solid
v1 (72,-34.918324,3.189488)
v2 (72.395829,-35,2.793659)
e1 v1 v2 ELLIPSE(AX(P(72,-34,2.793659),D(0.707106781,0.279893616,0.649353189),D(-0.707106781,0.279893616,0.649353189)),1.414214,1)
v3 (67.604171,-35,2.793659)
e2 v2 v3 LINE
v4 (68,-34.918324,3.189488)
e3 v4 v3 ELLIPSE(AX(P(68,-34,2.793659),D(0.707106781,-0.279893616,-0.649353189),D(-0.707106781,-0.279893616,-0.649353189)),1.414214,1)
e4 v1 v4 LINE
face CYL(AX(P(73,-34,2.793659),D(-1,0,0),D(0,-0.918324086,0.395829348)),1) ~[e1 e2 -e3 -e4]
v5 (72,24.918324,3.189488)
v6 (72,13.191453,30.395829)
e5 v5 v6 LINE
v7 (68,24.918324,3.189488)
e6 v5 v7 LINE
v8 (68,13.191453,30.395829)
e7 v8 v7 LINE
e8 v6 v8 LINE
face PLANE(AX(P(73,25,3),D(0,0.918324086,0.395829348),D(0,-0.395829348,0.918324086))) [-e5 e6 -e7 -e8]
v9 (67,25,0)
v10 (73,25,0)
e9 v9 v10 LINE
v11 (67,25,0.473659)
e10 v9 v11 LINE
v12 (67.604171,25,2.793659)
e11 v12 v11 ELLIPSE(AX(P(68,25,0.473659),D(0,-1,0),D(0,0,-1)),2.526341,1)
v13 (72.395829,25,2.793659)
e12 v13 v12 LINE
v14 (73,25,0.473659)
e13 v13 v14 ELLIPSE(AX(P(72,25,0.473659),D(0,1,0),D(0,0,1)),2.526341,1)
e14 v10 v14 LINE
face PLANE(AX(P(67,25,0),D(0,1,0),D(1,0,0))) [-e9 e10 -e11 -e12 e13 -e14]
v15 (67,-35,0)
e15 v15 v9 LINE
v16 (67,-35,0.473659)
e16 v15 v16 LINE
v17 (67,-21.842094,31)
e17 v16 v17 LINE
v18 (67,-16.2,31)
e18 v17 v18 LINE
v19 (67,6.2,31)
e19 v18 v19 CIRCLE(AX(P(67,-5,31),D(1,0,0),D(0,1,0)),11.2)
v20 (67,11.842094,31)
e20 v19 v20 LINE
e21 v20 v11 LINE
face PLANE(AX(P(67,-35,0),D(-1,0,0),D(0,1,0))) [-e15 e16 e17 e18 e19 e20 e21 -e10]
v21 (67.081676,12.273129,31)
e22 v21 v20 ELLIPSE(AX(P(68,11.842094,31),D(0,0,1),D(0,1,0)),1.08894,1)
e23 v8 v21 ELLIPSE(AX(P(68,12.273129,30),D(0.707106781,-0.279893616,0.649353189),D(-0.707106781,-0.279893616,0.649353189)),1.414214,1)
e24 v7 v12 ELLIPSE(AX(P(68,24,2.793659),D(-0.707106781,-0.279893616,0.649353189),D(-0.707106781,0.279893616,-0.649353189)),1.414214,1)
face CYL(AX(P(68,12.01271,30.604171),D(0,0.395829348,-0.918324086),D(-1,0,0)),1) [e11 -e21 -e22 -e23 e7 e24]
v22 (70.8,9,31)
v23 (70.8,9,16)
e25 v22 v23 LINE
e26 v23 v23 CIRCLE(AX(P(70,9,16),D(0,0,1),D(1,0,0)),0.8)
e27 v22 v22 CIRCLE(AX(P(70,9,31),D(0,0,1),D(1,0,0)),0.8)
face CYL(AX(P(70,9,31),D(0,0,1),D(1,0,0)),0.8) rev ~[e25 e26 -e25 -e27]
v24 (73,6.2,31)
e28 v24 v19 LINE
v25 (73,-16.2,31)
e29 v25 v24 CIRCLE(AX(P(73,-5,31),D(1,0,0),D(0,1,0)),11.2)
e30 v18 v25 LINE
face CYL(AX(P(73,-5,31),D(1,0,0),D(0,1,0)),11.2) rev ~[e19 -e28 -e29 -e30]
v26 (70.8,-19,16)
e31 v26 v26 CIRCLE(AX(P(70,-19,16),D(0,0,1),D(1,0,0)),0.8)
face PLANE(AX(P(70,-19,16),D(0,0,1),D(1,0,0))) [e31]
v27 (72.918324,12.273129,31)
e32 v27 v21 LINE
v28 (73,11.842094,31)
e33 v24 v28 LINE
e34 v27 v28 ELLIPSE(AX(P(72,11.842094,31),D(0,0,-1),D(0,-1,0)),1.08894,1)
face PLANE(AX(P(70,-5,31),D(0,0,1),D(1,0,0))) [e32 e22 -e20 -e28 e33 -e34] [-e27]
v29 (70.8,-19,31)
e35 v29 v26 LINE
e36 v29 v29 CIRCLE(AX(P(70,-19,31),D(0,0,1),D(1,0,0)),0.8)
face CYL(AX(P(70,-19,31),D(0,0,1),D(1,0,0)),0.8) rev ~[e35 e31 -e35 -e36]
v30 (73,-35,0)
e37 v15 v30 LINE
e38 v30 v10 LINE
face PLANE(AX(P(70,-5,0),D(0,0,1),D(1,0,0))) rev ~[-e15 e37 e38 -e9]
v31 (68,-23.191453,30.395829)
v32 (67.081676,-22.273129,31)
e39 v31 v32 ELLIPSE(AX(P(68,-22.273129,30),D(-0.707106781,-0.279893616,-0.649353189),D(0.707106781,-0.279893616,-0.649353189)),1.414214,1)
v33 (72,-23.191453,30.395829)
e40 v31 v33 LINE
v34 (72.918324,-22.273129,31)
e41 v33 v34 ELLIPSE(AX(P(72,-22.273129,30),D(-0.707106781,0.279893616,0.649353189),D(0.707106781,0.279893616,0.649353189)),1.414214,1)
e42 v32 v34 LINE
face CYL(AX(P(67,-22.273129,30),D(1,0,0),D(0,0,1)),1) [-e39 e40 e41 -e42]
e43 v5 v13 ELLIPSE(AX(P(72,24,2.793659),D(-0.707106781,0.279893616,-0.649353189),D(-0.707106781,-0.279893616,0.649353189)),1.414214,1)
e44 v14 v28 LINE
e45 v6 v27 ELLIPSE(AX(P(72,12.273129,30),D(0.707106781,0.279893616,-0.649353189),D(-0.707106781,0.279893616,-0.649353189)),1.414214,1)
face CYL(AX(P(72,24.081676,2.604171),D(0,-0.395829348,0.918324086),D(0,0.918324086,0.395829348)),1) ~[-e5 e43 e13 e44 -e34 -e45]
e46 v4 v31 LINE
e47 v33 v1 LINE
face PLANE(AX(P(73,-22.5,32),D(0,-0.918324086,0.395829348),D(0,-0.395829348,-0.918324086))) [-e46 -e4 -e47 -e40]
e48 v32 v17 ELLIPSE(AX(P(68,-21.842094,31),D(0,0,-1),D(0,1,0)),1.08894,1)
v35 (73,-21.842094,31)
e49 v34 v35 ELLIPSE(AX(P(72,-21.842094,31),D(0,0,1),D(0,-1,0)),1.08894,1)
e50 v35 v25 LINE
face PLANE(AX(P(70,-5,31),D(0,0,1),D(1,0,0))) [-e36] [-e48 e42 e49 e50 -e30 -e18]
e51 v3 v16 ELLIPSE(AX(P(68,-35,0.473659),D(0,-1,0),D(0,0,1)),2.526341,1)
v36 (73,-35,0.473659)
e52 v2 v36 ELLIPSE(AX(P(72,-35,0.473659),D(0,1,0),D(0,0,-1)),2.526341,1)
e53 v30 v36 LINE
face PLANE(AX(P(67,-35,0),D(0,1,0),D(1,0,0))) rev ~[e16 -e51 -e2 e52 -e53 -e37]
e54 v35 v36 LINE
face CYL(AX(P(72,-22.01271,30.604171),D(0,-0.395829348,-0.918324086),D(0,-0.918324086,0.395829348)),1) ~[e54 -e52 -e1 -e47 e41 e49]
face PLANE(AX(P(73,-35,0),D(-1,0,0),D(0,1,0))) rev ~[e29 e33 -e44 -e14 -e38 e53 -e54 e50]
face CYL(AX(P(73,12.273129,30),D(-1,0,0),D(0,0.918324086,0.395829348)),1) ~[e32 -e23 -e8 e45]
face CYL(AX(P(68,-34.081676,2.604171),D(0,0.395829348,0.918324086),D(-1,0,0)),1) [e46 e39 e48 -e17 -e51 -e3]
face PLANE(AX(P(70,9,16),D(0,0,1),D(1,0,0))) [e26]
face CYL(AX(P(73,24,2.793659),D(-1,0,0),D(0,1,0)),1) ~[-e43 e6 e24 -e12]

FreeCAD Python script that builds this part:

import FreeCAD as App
import Part
import Sketcher

V = App.Vector


def edges_at(feature, points):
    """Names of the edges that pass closest to the given points."""
    edges = feature.Shape.Edges
    near = lambda p: min(range(len(edges)), key=lambda i: edges[i].distToShape(Part.Vertex(*p))[0])
    return sorted({f"Edge{near(p) + 1}" for p in points})


def add_polygon(sketch, points):
    """Adds a closed chain of lines whose ends are joined by coincident constraints."""
    first, n = sketch.GeometryCount, len(points)
    for a, b in zip(points, points[1:] + points[:1]):
        sketch.addGeometry(Part.LineSegment(App.Vector(*a, 0), App.Vector(*b, 0)), False)
    for i in range(n):
        sketch.addConstraint(Sketcher.Constraint("Coincident", first + i, 2, first + (i + 1) % n, 1))

doc = App.newDocument("Part")
body = doc.addObject("PartDesign::Body", "Body")

# Sketch on XY plane
sketch1 = doc.addObject("Sketcher::SketchObject", "Sketch")
body.addObject(sketch1)
sketch1.AttachmentSupport = (doc.XY_Plane, [""])
sketch1.MapMode = "FlatFace"
add_polygon(sketch1, [(67, 25), (67, -35), (73, -35), (73, 25)])  # lines 0-3
sketch1.addConstraint([
    Sketcher.Constraint("Vertical", 0),
    Sketcher.Constraint("Horizontal", 1),
    Sketcher.Constraint("Vertical", 2),
    Sketcher.Constraint("Horizontal", 3),
    Sketcher.Constraint("DistanceX", 1, 1, 1, 2, 6.0),
    Sketcher.Constraint("DistanceY", 0, 2, 0, 1, 60.0),
    Sketcher.Constraint("DistanceX", -1, 1, 0, 2, 67.0),
    Sketcher.Constraint("DistanceY", 0, 2, -1, 1, 35.0),
])
pad1 = doc.addObject("PartDesign::Pad", "Pad")
body.addObject(pad1)
pad1.Profile = sketch1
pad1.Length = 31

# Sketch on YZ plane
sketch2 = doc.addObject("Sketcher::SketchObject", "Sketch001")
body.addObject(sketch2)
sketch2.AttachmentSupport = (doc.YZ_Plane, [""])
sketch2.MapMode = "FlatFace"
sketch2.AttachmentOffset = App.Placement(V(0, 0, 73), App.Rotation())
sketch2.addGeometry(Part.Circle(V(-5, 31, 0), V(0, 0, 1), 11), False)
sketch2.addConstraint([
    Sketcher.Constraint("Diameter", 0, 22.4),
    Sketcher.Constraint("DistanceX", 0, 3, -1, 1, 5.0),
    Sketcher.Constraint("DistanceY", -1, 1, 0, 3, 31.0),
])
pocket1 = doc.addObject("PartDesign::Pocket", "Pocket")
body.addObject(pocket1)
pocket1.Profile = sketch2
pocket1.Type = "ThroughAll"

# Sketch on XY plane
sketch3 = doc.addObject("Sketcher::SketchObject", "Sketch002")
body.addObject(sketch3)
sketch3.AttachmentSupport = (doc.XY_Plane, [""])
sketch3.MapMode = "FlatFace"
sketch3.AttachmentOffset = App.Placement(V(0, 0, 31), App.Rotation())
sketch3.addGeometry([
    Part.Circle(V(70, 9, 0), V(0, 0, 1), 0.8),
    Part.Circle(V(70, -19, 0), V(0, 0, 1), 0.8),
], False)
sketch3.addConstraint([
    Sketcher.Constraint("Equal", 0, 1),
    Sketcher.Constraint("Vertical", 0, 3, 1, 3),
    Sketcher.Constraint("Diameter", 0, 1.6),
    Sketcher.Constraint("DistanceX", -1, 1, 0, 3, 70.0),
    Sketcher.Constraint("DistanceY", -1, 1, 0, 3, 9.0),
    Sketcher.Constraint("DistanceY", 1, 3, -1, 1, 19.0),
])
pocket2 = doc.addObject("PartDesign::Pocket", "Pocket001")
body.addObject(pocket2)
pocket2.Profile = sketch3
pocket2.Length = 15

# Sketch on YZ plane
sketch4 = doc.addObject("Sketcher::SketchObject", "Sketch003")
body.addObject(sketch4)
sketch4.AttachmentSupport = (doc.YZ_Plane, [""])
sketch4.MapMode = "FlatFace"
sketch4.AttachmentOffset = App.Placement(V(0, 0, 73), App.Rotation())
add_polygon(sketch4, [(12, 32), (25, 3), (33, 52), (-38, 52), (-35, 3), (-22, 32)])  # lines 0-5
sketch4.addConstraint([
    Sketcher.Constraint("Horizontal", 2),
    Sketcher.Constraint("Horizontal", 5),
    Sketcher.Constraint("Horizontal", 0, 2, 3, 2),
    Sketcher.Constraint("Equal", 0, 4),
    Sketcher.Constraint("DistanceX", 5, 1, 5, 2, 35.0),
    Sketcher.Constraint("DistanceX", -1, 1, 0, 2, 25.0),
    Sketcher.Constraint("DistanceY", -1, 1, 0, 2, 3.0),
    Sketcher.Constraint("DistanceX", 3, 2, -1, 1, 35.0),
    Sketcher.Constraint("DistanceY", -1, 1, 4, 2, 32.0),
    Sketcher.Constraint("Distance", 1, 49.823),
    Sketcher.Constraint("DistanceX", 2, 2, 2, 1, 71.3562),
    Sketcher.Constraint("Distance", 3, 49.2768),
])
pocket3 = doc.addObject("PartDesign::Pocket", "Pocket002")
body.addObject(pocket3)
pocket3.Profile = sketch4
pocket3.Type = "ThroughAll"
doc.recompute()

fillet = doc.addObject("PartDesign::Fillet", "Fillet")
body.addObject(fillet)
fillet.Base = (pocket3, edges_at(pocket3, [
    (73, 18.966, 17),
    (70, 12.931, 31),
    (67, 18.966, 17),
    (70, 25, 3),
    (73, -28.966, 17),
    (70, -35, 3),
    (67, -28.966, 17),
    (70, -22.931, 31),
]))
fillet.Radius = 1

doc.recompute()
